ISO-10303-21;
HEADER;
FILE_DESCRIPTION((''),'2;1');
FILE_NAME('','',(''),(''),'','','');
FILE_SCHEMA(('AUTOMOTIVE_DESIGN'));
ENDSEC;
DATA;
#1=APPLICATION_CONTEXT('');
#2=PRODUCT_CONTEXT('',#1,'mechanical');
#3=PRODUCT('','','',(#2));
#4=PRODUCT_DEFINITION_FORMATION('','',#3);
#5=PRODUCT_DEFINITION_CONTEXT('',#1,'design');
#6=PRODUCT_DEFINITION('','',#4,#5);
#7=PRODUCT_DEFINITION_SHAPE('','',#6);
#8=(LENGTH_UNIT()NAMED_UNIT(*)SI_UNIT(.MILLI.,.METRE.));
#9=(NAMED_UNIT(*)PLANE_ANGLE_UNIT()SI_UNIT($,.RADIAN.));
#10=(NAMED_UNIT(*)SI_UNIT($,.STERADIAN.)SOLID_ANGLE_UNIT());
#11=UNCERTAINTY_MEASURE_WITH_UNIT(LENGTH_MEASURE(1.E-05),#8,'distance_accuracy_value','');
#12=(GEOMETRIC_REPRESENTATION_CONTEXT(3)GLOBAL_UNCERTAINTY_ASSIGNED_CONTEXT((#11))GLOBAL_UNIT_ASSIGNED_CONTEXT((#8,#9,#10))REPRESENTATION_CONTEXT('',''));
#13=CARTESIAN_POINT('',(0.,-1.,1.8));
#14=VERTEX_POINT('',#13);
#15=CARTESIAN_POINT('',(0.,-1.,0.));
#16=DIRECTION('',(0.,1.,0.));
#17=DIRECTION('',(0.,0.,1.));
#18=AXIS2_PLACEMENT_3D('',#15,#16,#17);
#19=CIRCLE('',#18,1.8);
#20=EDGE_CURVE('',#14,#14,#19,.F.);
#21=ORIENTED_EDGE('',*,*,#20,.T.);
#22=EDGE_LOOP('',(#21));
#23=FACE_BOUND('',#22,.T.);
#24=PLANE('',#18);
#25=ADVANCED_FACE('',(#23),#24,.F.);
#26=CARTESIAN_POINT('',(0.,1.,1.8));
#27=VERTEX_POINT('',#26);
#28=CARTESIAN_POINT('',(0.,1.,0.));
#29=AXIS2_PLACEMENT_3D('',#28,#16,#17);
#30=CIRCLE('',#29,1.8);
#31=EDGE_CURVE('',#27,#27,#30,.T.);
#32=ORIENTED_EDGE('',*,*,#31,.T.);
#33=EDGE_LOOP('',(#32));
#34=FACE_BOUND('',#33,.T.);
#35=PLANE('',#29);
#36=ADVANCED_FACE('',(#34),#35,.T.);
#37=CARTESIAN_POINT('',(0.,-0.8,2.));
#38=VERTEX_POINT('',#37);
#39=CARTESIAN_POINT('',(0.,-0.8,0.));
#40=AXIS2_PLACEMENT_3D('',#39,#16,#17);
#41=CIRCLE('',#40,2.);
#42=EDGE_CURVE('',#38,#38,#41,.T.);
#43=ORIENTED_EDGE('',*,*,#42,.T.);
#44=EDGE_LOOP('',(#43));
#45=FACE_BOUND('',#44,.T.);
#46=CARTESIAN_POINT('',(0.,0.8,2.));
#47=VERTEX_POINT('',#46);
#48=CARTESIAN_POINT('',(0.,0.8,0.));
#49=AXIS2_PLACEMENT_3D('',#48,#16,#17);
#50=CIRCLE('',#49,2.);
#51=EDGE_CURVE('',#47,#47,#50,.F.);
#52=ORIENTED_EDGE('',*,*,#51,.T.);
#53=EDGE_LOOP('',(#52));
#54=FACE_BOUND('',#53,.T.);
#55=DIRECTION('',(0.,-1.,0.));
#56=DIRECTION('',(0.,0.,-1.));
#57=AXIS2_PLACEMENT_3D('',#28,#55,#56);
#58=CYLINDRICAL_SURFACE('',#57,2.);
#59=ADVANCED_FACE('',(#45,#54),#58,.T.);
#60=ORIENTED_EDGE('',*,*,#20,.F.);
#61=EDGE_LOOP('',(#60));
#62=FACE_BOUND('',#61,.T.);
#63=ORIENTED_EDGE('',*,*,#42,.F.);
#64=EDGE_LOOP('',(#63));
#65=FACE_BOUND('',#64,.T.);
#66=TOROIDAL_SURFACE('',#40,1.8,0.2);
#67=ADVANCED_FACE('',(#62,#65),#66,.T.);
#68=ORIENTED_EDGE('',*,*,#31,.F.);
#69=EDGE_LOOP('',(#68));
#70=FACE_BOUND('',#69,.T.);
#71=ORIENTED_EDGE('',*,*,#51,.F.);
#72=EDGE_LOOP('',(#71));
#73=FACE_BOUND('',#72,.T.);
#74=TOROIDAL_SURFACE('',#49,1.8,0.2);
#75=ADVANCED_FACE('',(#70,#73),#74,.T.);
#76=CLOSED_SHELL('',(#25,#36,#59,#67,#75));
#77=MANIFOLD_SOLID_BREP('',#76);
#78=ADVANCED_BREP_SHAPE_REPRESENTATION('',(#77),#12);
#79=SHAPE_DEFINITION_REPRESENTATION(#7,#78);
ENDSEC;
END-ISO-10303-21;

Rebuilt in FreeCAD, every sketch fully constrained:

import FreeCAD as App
import Part
import Sketcher
from FreeCAD import Vector


def edges_at(feature, points):
    """Names of the edges that pass closest to the given points."""
    edges = feature.Shape.Edges
    near = lambda p: min(range(len(edges)), key=lambda i: edges[i].distToShape(Part.Vertex(*p))[0])
    return sorted({f"Edge{near(p) + 1}" for p in points})

doc = App.newDocument("Part")
params = doc.addObject("Spreadsheet::Sheet", "Params")
for row, (alias, value) in enumerate([
    ("sketch1_diameter", "4 mm"),
    ("pad1_length", "2 mm"),
    ("fillet_radius", "0.2 mm"),
], start=1):
    params.set(f"A{row}", alias)
    params.set(f"B{row}", "=" + value)
    params.setAlias(f"B{row}", alias)

body = doc.addObject("PartDesign::Body", "Body")

sketch1 = body.newObject("Sketcher::SketchObject", "Sketch")
sketch1.AttachmentSupport = (doc.getObject("XZ_Plane"), [""])
sketch1.MapMode = "FlatFace"
sketch1.addGeometry(Part.Circle(Vector(0, 0, 0), Vector(0, 0, 1), 2), False)
sketch1.addConstraint([
    Sketcher.Constraint("Coincident", 0, 3, -1, 1),
    Sketcher.Constraint("Diameter", 0, 4.0),
])
sketch1.setExpression("Constraints[1]", "Params.sketch1_diameter")
pad1 = body.newObject("PartDesign::Pad", "Pad")
pad1.Profile = sketch1
pad1.setExpression("Length", "Params.pad1_length")
pad1.Midplane = True
doc.recompute()

fillet = body.newObject("PartDesign::Fillet", "Fillet")
fillet.Base = (pad1, edges_at(pad1, [(-2, -1, 0), (-2, 1, 0)]))
fillet.setExpression("Radius", "Params.fillet_radius")

doc.recompute()
